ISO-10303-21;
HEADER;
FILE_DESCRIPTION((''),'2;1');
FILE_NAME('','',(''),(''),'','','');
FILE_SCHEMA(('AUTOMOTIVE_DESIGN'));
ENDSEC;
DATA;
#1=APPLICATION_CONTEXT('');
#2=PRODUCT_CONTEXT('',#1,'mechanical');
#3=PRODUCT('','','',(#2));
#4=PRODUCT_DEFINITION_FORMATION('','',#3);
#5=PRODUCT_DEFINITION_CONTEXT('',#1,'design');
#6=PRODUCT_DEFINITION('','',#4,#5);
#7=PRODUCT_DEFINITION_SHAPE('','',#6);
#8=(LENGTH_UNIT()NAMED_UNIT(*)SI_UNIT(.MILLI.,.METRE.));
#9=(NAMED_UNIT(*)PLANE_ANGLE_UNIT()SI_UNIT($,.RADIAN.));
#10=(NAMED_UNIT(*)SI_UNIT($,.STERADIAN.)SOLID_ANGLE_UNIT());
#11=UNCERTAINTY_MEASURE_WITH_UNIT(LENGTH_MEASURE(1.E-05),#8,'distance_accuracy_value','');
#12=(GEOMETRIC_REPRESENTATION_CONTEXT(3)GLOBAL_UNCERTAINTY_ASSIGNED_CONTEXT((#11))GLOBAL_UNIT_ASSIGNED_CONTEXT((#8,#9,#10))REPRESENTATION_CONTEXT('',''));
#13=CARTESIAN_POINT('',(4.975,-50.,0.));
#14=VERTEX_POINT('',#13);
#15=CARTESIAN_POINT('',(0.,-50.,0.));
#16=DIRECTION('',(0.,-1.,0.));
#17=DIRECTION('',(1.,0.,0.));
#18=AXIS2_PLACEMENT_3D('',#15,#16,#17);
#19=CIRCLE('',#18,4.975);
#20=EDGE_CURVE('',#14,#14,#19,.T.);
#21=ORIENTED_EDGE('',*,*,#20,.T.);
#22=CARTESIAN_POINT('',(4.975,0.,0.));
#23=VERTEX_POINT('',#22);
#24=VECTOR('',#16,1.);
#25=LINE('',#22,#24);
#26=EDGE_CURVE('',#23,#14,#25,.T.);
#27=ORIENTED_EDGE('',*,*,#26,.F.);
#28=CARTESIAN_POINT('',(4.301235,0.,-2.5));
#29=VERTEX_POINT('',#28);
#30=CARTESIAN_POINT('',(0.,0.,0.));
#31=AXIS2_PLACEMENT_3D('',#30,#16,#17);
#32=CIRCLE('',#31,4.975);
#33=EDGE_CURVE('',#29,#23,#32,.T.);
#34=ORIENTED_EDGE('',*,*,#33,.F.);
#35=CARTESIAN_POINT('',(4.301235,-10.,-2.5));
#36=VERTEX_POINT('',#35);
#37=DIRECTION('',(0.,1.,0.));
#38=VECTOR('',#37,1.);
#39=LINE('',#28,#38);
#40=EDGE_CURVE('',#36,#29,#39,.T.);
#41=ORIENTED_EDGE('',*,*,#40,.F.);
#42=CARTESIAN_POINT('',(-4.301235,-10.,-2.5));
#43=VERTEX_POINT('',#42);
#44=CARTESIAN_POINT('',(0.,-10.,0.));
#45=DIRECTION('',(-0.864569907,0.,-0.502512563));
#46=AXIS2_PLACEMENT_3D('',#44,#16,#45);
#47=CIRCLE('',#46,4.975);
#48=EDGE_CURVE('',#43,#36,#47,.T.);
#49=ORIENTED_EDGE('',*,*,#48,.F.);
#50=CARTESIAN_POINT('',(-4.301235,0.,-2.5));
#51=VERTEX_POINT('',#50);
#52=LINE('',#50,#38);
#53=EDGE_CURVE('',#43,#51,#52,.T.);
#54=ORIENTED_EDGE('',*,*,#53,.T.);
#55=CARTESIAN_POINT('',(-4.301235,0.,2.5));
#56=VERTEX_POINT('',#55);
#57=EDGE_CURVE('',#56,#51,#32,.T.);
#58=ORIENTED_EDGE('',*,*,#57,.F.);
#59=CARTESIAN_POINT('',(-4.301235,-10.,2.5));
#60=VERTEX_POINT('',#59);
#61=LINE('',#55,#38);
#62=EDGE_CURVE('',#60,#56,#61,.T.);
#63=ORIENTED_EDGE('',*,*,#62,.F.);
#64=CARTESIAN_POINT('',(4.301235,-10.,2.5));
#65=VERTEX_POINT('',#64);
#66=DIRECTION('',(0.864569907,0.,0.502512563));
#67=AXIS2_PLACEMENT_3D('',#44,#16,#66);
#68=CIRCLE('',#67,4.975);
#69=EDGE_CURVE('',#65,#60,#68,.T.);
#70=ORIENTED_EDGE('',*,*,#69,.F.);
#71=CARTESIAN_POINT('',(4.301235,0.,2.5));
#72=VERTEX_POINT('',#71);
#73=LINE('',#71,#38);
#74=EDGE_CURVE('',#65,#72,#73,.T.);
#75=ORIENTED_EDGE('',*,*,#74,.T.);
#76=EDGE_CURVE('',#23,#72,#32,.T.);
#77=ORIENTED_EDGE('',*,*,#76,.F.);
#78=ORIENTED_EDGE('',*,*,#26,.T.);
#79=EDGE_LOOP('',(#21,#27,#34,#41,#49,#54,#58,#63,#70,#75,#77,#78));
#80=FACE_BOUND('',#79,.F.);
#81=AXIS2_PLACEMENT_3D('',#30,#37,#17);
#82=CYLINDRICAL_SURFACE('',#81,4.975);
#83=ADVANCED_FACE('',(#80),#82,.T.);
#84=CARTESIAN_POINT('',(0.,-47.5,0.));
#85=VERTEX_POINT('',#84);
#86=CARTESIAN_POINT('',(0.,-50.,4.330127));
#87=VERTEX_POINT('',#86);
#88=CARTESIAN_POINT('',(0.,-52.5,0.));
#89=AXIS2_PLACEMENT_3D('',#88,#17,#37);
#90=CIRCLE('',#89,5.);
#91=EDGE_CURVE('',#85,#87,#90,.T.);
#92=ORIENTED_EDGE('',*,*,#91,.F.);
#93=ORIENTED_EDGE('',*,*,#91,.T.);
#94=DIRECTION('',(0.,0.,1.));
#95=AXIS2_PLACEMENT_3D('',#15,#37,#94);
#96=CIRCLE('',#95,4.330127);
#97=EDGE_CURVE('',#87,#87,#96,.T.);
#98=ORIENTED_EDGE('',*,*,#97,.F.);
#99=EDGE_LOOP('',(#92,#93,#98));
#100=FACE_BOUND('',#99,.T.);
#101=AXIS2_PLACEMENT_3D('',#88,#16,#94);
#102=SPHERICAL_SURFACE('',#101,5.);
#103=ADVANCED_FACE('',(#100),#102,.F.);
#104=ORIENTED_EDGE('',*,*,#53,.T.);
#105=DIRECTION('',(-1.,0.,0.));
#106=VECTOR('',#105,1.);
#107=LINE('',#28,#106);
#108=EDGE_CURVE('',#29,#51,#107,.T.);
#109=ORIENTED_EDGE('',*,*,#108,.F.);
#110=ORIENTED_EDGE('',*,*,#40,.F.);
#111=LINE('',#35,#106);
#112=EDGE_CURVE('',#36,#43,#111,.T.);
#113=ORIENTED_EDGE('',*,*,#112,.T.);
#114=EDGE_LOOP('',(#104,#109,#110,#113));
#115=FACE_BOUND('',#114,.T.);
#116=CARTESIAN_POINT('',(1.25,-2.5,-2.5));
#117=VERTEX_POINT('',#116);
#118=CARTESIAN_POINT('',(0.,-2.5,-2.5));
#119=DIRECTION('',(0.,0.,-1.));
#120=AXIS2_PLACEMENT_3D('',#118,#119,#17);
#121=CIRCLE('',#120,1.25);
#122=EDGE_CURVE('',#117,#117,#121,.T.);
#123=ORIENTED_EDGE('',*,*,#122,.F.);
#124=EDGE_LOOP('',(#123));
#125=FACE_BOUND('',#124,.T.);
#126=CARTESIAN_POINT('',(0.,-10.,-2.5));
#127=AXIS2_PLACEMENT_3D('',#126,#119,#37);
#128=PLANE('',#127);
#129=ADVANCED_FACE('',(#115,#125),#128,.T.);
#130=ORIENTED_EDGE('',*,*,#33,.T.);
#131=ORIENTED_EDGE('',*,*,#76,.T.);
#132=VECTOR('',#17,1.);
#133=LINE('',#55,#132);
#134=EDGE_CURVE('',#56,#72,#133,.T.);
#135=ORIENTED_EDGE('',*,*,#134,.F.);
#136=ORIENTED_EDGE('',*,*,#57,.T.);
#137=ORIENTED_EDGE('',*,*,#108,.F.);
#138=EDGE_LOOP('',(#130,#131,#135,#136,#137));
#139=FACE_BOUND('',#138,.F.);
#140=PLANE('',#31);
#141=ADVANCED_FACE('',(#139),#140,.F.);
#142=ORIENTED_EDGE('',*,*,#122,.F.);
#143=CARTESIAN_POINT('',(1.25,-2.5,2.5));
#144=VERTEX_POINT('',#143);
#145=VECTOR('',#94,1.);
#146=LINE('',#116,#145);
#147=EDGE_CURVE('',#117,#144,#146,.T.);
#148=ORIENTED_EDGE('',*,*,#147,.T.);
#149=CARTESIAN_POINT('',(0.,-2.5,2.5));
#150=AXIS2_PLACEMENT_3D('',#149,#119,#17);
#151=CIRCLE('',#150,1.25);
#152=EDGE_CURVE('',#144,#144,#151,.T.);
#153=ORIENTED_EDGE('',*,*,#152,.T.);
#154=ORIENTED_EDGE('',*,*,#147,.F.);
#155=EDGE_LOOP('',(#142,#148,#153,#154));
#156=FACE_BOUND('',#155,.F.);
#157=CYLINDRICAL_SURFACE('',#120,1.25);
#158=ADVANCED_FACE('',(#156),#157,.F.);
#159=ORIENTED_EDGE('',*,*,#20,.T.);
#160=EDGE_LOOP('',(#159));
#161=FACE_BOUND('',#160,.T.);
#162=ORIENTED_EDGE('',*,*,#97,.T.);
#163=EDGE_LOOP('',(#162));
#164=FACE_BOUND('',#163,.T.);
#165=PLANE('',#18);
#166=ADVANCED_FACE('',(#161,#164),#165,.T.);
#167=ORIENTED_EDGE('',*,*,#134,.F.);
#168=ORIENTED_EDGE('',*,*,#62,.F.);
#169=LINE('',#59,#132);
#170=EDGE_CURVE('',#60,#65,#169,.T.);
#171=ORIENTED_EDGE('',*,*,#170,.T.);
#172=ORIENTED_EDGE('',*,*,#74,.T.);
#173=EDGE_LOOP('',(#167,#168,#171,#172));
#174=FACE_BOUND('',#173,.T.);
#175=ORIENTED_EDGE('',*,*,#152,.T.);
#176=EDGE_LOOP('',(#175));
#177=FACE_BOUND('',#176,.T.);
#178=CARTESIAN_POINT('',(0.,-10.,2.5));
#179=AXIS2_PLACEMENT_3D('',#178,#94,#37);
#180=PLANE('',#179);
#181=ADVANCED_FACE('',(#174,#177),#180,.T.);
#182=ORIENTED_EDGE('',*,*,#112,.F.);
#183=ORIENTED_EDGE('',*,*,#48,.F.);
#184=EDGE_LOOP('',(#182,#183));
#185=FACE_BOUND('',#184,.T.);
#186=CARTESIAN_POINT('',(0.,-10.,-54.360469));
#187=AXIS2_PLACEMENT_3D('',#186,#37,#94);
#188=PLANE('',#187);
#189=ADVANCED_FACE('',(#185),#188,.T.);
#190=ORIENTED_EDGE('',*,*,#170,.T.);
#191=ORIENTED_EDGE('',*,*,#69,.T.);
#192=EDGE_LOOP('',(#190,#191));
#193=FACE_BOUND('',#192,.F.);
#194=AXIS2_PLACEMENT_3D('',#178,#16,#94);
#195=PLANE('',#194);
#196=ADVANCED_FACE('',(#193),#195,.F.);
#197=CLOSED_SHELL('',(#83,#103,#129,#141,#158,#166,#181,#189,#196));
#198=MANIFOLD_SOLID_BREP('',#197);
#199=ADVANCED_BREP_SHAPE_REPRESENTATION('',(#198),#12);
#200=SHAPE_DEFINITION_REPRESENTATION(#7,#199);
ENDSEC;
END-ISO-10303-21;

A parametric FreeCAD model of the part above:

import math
import FreeCAD as App
import Part
import Sketcher

V = App.Vector
Q = App.Units.Quantity

doc = App.newDocument("Part")
body = doc.addObject("PartDesign::Body", "Body")

sketch1 = doc.addObject("Sketcher::SketchObject", "Sketch")
body.addObject(sketch1)
sketch1.AttachmentSupport = (doc.XZ_Plane, [""])
sketch1.MapMode = "FlatFace"
sketch1.addGeometry(Part.Circle(V(0, 0, 0), V(0, 0, 1), 4.975), False)
sketch1.addConstraint([
    Sketcher.Constraint("Coincident", 0, 3, -1, 1),
    Sketcher.Constraint("Diameter", 0, 9.95),
])
pad1 = doc.addObject("PartDesign::Pad", "Pad")
body.addObject(pad1)
pad1.Profile = sketch1
pad1.Length = 50

sketch2 = doc.addObject("Sketcher::SketchObject", "Sketch001")
body.addObject(sketch2)
sketch2.AttachmentSupport = (doc.YZ_Plane, [""])
sketch2.MapMode = "FlatFace"
sketch2.addGeometry([
    Part.LineSegment(V(-52.5, 0, 0), V(-47.5, 0, 0)),
    Part.ArcOfCircle(Part.Circle(V(-52.5, 0, 0), V(0, 0, 1), 5), math.radians(0), math.radians(60)),
    Part.LineSegment(V(-50, 4.330127, 0), V(-52.5, 0, 0)),
], False)
sketch2.addConstraint([
    Sketcher.Constraint("Coincident", 0, 2, 1, 1),
    Sketcher.Constraint("Coincident", 1, 2, 2, 1),
    Sketcher.Constraint("Coincident", 2, 2, 0, 1),
    Sketcher.Constraint("Horizontal", 0),
    Sketcher.Constraint("Coincident", 2, 2, 1, 3),
    Sketcher.Constraint("PointOnObject", 1, 3, -1),
    Sketcher.Constraint("Radius", 1, 5.0),
    Sketcher.Constraint("Angle", 2, Q("-120 deg")),
    Sketcher.Constraint("DistanceX", 1, 2, -1, 1, 50.0),
])
groove = doc.addObject("PartDesign::Groove", "Groove")
body.addObject(groove)
groove.Profile = sketch2
groove.ReferenceAxis = (sketch2, ["H_Axis"])
groove.Angle = 360

sketch3 = doc.addObject("Sketcher::SketchObject", "Sketch002")
body.addObject(sketch3)
sketch3.AttachmentSupport = (doc.YZ_Plane, [""])
sketch3.MapMode = "FlatFace"
sketch3.addGeometry([
    Part.LineSegment(V(-10, 33.43948, 0), V(-10, 2.5, 0)),
    Part.LineSegment(V(-10, 2.5, 0), V(26.935594, 2.5, 0)),
    Part.LineSegment(V(26.935594, 2.5, 0), V(26.935594, 33.43948, 0)),
    Part.LineSegment(V(26.935594, 33.43948, 0), V(-10, 33.43948, 0)),
    Part.LineSegment(V(-10, -2.5, 0), V(-10, -54.360469, 0)),
    Part.LineSegment(V(-10, -54.360469, 0), V(26.961636, -54.360469, 0)),
    Part.LineSegment(V(26.961636, -54.360469, 0), V(26.961636, -2.5, 0)),
    Part.LineSegment(V(26.961636, -2.5, 0), V(-10, -2.5, 0)),
], False)
sketch3.addConstraint([
    Sketcher.Constraint("Coincident", 0, 2, 1, 1),
    Sketcher.Constraint("Coincident", 1, 2, 2, 1),
    Sketcher.Constraint("Coincident", 2, 2, 3, 1),
    Sketcher.Constraint("Coincident", 3, 2, 0, 1),
    Sketcher.Constraint("Coincident", 4, 2, 5, 1),
    Sketcher.Constraint("Coincident", 5, 2, 6, 1),
    Sketcher.Constraint("Coincident", 6, 2, 7, 1),
    Sketcher.Constraint("Coincident", 7, 2, 4, 1),
    Sketcher.Constraint("Vertical", 0),
    Sketcher.Constraint("Horizontal", 1),
    Sketcher.Constraint("Vertical", 2),
    Sketcher.Constraint("Horizontal", 3),
    Sketcher.Constraint("Vertical", 4),
    Sketcher.Constraint("Horizontal", 5),
    Sketcher.Constraint("Vertical", 6),
    Sketcher.Constraint("Horizontal", 7),
    Sketcher.Constraint("Symmetric", 0, 2, 7, 2, -1),
    Sketcher.Constraint("DistanceX", 0, 2, -1, 1, 10.0),
    Sketcher.Constraint("DistanceY", 6, 2, 1, 2, 5.0),
    Sketcher.Constraint("DistanceY", 0, 2, 0, 1, 30.93948),
    Sketcher.Constraint("DistanceY", 4, 2, 4, 1, 51.860469),
    Sketcher.Constraint("DistanceX", 1, 1, 1, 2, 36.935594),
    Sketcher.Constraint("DistanceX", 5, 1, 5, 2, 36.961636),
])
pocket1 = doc.addObject("PartDesign::Pocket", "Pocket")
body.addObject(pocket1)
pocket1.Profile = sketch3
pocket1.Type = "ThroughAll"
pocket1.Midplane = True

sketch4 = doc.addObject("Sketcher::SketchObject", "Sketch003")
body.addObject(sketch4)
sketch4.AttachmentSupport = (doc.XY_Plane, [""])
sketch4.MapMode = "FlatFace"
sketch4.AttachmentOffset = App.Placement(V(0, 0, -2.5), App.Rotation())
sketch4.addGeometry(Part.Circle(V(0, -2.5, 0), V(0, 0, 1), 1.25), False)
sketch4.addConstraint([
    Sketcher.Constraint("PointOnObject", 0, 3, -2),
    Sketcher.Constraint("Diameter", 0, 2.5),
    Sketcher.Constraint("DistanceY", 0, 3, -1, 1, 2.5),
])
pocket2 = doc.addObject("PartDesign::Pocket", "Pocket001")
body.addObject(pocket2)
pocket2.Profile = sketch4
pocket2.Length = 25
pocket2.Reversed = True

doc.recompute()
